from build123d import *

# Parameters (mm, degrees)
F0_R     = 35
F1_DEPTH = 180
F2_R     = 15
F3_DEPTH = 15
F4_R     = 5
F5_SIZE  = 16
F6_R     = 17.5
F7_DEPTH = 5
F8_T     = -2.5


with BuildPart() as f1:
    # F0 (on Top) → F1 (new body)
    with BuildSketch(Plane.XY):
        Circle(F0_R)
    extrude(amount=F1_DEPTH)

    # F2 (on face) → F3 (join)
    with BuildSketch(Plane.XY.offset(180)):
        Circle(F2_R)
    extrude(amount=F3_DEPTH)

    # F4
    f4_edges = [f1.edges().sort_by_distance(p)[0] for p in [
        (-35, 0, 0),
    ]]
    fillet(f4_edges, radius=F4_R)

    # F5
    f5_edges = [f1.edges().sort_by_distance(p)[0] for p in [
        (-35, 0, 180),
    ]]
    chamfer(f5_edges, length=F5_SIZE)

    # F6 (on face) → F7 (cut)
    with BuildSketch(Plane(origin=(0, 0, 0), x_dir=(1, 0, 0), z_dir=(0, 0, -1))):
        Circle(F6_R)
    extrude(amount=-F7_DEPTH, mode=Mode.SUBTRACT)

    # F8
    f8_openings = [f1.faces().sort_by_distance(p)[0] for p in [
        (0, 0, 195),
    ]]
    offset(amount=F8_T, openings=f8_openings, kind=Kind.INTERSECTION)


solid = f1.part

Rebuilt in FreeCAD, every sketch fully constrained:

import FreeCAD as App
import Part
import Sketcher
from FreeCAD import Vector


def edges_at(feature, points):
    """Names of the edges that pass closest to the given points."""
    edges = feature.Shape.Edges
    near = lambda p: min(range(len(edges)), key=lambda i: edges[i].distToShape(Part.Vertex(*p))[0])
    return sorted({f"Edge{near(p) + 1}" for p in points})


def faces_at(feature, points):
    """Names of the faces that lie closest to the given points."""
    faces = feature.Shape.Faces
    near = lambda p: min(range(len(faces)), key=lambda i: faces[i].distToShape(Part.Vertex(*p))[0])
    return sorted({f"Face{near(p) + 1}" for p in points})

doc = App.newDocument("Part")
body = doc.addObject("PartDesign::Body", "Body")

# Sketch on XY plane
sketch1 = body.newObject("Sketcher::SketchObject", "Sketch")
sketch1.AttachmentSupport = (doc.getObject("XY_Plane"), [""])
sketch1.MapMode = "FlatFace"
sketch1.addGeometry(Part.Circle(Vector(0, 0, 0), Vector(0, 0, 1), 35), False)
sketch1.addConstraint(Sketcher.Constraint("Coincident", 0, 3, -1, 1))
sketch1.addConstraint(Sketcher.Constraint("Diameter", 0, 70.0))
pad1 = body.newObject("PartDesign::Pad", "Pad")
pad1.Profile = sketch1
pad1.Length = 180

# Sketch on XY plane
sketch2 = body.newObject("Sketcher::SketchObject", "Sketch001")
sketch2.AttachmentSupport = (doc.getObject("XY_Plane"), [""])
sketch2.MapMode = "FlatFace"
sketch2.AttachmentOffset = App.Placement(Vector(0, 0, 180), App.Rotation())
sketch2.addGeometry(Part.Circle(Vector(0, 0, 0), Vector(0, 0, 1), 15), False)
sketch2.addConstraint(Sketcher.Constraint("Coincident", 0, 3, -1, 1))
sketch2.addConstraint(Sketcher.Constraint("Diameter", 0, 30.0))
pad2 = body.newObject("PartDesign::Pad", "Pad001")
pad2.Profile = sketch2
pad2.Length = 15
doc.recompute()

fillet = body.newObject("PartDesign::Fillet", "Fillet")
fillet.Base = (pad2, edges_at(pad2, [(-35, 0, 0)]))
fillet.Radius = 5
doc.recompute()

chamfer = body.newObject("PartDesign::Chamfer", "Chamfer")
chamfer.Base = (fillet, edges_at(fillet, [(-35, 0, 180)]))
chamfer.Size = 16

# Sketch on XY plane
sketch3 = body.newObject("Sketcher::SketchObject", "Sketch002")
sketch3.AttachmentSupport = (doc.getObject("XY_Plane"), [""])
sketch3.MapMode = "FlatFace"
sketch3.addGeometry(Part.Circle(Vector(0, 0, 0), Vector(0, 0, 1), 18), False)
sketch3.addConstraint(Sketcher.Constraint("Coincident", 0, 3, -1, 1))
sketch3.addConstraint(Sketcher.Constraint("Diameter", 0, 35.0))
pocket1 = body.newObject("PartDesign::Pocket", "Pocket")
pocket1.Profile = sketch3
pocket1.Length = 5
pocket1.Reversed = True
doc.recompute()

thickness = body.newObject("PartDesign::Thickness", "Thickness")
thickness.Base = (pocket1, faces_at(pocket1, [(0, 0, 195)]))
thickness.Value = 2.5
thickness.Reversed = True
thickness.Join = "Intersection"

doc.recompute()
